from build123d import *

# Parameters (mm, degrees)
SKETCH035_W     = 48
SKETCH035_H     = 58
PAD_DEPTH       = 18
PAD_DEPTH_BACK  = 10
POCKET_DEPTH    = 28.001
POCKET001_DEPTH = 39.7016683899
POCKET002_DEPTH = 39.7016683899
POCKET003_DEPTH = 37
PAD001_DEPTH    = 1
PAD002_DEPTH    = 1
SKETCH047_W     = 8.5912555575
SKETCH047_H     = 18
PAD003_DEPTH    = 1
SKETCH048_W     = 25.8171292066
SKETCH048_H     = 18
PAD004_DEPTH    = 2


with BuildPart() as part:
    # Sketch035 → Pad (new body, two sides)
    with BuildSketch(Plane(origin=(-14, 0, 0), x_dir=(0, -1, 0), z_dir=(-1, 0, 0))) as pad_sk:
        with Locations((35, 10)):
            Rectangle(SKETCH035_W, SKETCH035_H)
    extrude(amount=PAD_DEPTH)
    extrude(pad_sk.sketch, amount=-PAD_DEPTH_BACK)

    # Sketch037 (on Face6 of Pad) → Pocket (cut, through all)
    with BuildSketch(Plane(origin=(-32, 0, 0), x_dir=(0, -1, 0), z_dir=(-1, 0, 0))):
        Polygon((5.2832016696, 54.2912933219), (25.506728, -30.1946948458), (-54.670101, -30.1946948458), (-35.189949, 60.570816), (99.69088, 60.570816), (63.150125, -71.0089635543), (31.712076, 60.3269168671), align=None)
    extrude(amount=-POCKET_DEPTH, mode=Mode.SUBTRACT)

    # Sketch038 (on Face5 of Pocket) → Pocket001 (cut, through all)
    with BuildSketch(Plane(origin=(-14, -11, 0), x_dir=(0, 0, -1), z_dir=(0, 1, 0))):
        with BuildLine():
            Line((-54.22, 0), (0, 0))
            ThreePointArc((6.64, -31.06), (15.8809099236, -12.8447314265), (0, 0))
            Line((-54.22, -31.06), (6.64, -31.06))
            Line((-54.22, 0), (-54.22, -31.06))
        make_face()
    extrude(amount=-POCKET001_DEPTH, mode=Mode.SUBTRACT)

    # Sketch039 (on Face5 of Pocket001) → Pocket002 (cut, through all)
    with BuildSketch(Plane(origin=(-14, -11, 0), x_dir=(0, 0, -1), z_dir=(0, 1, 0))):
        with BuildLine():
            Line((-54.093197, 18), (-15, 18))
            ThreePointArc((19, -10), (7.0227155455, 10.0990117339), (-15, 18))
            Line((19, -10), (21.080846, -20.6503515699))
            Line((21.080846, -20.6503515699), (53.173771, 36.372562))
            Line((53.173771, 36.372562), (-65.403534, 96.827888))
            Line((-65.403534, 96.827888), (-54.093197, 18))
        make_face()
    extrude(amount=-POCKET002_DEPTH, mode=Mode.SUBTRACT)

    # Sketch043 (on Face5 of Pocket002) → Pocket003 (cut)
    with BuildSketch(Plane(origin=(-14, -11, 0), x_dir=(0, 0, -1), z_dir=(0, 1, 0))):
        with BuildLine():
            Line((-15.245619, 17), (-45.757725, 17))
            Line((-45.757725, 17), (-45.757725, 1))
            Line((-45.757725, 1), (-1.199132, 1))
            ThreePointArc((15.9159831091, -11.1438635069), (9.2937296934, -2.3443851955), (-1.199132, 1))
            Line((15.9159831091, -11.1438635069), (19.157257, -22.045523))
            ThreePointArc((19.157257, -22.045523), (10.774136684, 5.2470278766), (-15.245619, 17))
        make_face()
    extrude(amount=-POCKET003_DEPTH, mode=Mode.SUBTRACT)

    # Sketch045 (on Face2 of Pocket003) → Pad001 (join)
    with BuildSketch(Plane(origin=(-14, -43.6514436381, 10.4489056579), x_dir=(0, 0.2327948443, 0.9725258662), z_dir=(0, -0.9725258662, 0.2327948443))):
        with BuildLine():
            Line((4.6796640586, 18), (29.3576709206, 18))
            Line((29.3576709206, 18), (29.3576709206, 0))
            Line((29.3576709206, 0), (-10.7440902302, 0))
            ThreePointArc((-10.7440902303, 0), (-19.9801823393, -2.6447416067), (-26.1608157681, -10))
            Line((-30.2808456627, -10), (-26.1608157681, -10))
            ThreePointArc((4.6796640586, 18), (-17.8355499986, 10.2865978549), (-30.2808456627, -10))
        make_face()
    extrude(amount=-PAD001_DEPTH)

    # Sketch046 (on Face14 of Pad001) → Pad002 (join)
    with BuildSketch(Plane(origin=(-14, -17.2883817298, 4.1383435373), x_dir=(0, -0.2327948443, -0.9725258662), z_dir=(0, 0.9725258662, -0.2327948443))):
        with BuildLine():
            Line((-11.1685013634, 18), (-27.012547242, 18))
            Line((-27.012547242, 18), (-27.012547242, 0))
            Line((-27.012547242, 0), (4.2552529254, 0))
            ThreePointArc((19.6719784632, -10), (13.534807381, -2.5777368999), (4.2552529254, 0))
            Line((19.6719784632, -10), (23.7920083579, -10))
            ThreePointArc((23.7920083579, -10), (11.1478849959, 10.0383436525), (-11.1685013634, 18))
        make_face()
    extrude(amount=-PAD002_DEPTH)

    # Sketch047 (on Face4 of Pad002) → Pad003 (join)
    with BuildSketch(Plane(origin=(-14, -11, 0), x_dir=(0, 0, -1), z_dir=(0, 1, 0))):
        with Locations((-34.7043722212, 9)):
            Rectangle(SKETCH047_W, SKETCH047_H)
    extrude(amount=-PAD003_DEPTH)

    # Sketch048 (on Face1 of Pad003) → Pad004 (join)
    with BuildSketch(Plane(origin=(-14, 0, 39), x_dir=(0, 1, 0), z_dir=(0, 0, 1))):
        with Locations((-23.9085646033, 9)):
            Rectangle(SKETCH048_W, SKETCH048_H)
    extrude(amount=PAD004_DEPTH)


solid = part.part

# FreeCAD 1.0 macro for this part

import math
import FreeCAD as App
import Part
import Sketcher
Q = App.Units.Quantity

doc = App.newDocument("Part")
params = doc.addObject("Spreadsheet::Sheet", "Params")
for row, (alias, value) in enumerate([
    ("sketch1_width", "48 mm"),
    ("sketch1_height", "58 mm"),
    ("pad1_length", "18 mm"),
    ("pad1_length2", "10 mm"),
    ("sketch3_width", "31.06 mm"),
    ("sketch3_height", "54.22 mm"),
    ("sketch3_height2", "60.86 mm"),
    ("sketch5_width", "16 mm"),
    ("pocket4_length", "37 mm"),
    ("sketch6_height", "18 mm"),
    ("pad2_length", "1 mm"),
    ("sketch7_height", "18 mm"),
    ("pad3_length", "1 mm"),
    ("sketch8_width", "18 mm"),
    ("pad4_length", "1 mm"),
    ("sketch9_width", "18 mm"),
    ("pad5_length", "2 mm"),
], start=1):
    params.set(f"A{row}", alias)
    params.set(f"B{row}", "=" + value)
    params.setAlias(f"B{row}", alias)

body = doc.addObject("PartDesign::Body", "Body")

# Sketch on YZ plane
sketch1 = body.newObject("Sketcher::SketchObject", "Sketch")
sketch1.AttachmentSupport = (doc.getObject("YZ_Plane"), [""])
sketch1.MapMode = "FlatFace"
sketch1.AttachmentOffset = App.Placement(App.Vector(0, 0, -14), App.Rotation())
sketch1.addGeometry([
    Part.LineSegment(App.Vector(-11, 39, 0), App.Vector(-11, -19, 0)),
    Part.LineSegment(App.Vector(-11, -19, 0), App.Vector(-59, -19, 0)),
    Part.LineSegment(App.Vector(-59, -19, 0), App.Vector(-59, 39, 0)),
    Part.LineSegment(App.Vector(-59, 39, 0), App.Vector(-11, 39, 0)),
], False)
sketch1.addConstraint([
    Sketcher.Constraint("Coincident", 0, 2, 1, 1),
    Sketcher.Constraint("Coincident", 1, 2, 2, 1),
    Sketcher.Constraint("Coincident", 2, 2, 3, 1),
    Sketcher.Constraint("Coincident", 3, 2, 0, 1),
    Sketcher.Constraint("Vertical", 0),
    Sketcher.Constraint("Horizontal", 1),
    Sketcher.Constraint("Vertical", 2),
    Sketcher.Constraint("Horizontal", 3),
    Sketcher.Constraint("DistanceX", 1, 2, 1, 1, Q("48 mm")),
    Sketcher.Constraint("DistanceY", 0, 2, 0, 1, Q("58 mm")),
    Sketcher.Constraint("DistanceX", 0, 2, -1, 1, Q("11 mm")),
    Sketcher.Constraint("DistanceY", 0, 2, -1, 1, Q("19 mm")),
])
sketch1.setExpression("Constraints[8]", "Params.sketch1_width")
sketch1.setExpression("Constraints[9]", "Params.sketch1_height")
pad1 = body.newObject("PartDesign::Pad", "Pad")
pad1.Profile = sketch1
pad1.Type = "TwoLengths"
pad1.setExpression("Length", "Params.pad1_length")
pad1.setExpression("Length2", "Params.pad1_length2")
pad1.Reversed = True

# Sketch on YZ plane
sketch2 = body.newObject("Sketcher::SketchObject", "Sketch001")
sketch2.AttachmentSupport = (doc.getObject("YZ_Plane"), [""])
sketch2.MapMode = "FlatFace"
sketch2.AttachmentOffset = App.Placement(App.Vector(0, 0, -32), App.Rotation())
sketch2.addGeometry([
    Part.LineSegment(App.Vector(-26, -30, 0), App.Vector(-5, 54, 0)),  # 0
    Part.LineSegment(App.Vector(-5, 54, 0), App.Vector(-32, 60, 0)),  # 1
    Part.LineSegment(App.Vector(-32, 60, 0), App.Vector(-63, -71, 0)),  # 2
    Part.LineSegment(App.Vector(-63, -71, 0), App.Vector(-100, 61, 0)),  # 3
    Part.LineSegment(App.Vector(-100, 61, 0), App.Vector(35, 61, 0)),  # 4
    Part.LineSegment(App.Vector(35, 61, 0), App.Vector(55, -30, 0)),  # 5
    Part.LineSegment(App.Vector(55, -30, 0), App.Vector(-26, -30, 0)),  # 6
], False)
sketch2.addConstraint([
    Sketcher.Constraint("Coincident", 0, 2, 1, 1),
    Sketcher.Constraint("Coincident", 1, 2, 2, 1),
    Sketcher.Constraint("Coincident", 2, 2, 3, 1),
    Sketcher.Constraint("Coincident", 3, 2, 4, 1),
    Sketcher.Constraint("Coincident", 4, 2, 5, 1),
    Sketcher.Constraint("Coincident", 5, 2, 6, 1),
    Sketcher.Constraint("Coincident", 6, 2, 0, 1),
    Sketcher.Constraint("Horizontal", 4),
    Sketcher.Constraint("Horizontal", 6),
    Sketcher.Constraint("Parallel", 0, 2),
    Sketcher.Constraint("Distance", 1, Q("27.1093 mm")),
    Sketcher.Constraint("Distance", 5, Q("92.832399 mm")),
    Sketcher.Constraint("DistanceX", 4, 1, 4, 2, Q("134.880829 mm")),
    Sketcher.Constraint("DistanceX", 6, 2, 6, 1, Q("80.176829 mm")),
    Sketcher.Constraint("DistanceX", 0, 2, -1, 1, Q("5.283202 mm")),
    Sketcher.Constraint("DistanceX", -1, 1, 5, 2, Q("54.670101 mm")),
    Sketcher.Constraint("DistanceY", 1, 2, 3, 2, Q("0.243899 mm")),
    Sketcher.Constraint("Distance", 0, Q("86.872741 mm")),
    Sketcher.Constraint("DistanceX", 3, 2, -1, 1, Q("99.69088 mm")),
    Sketcher.Constraint("DistanceX", 2, 2, 1, 2, Q("31.438049 mm")),
    Sketcher.Constraint("DistanceY", -1, 1, 0, 2, Q("54.291293 mm")),
])
pocket1 = body.newObject("PartDesign::Pocket", "Pocket")
pocket1.Profile = sketch2
pocket1.Type = "ThroughAll"
pocket1.Reversed = True

# Sketch on XZ plane
sketch3 = body.newObject("Sketcher::SketchObject", "Sketch002")
sketch3.AttachmentSupport = (doc.getObject("XZ_Plane"), [""])
sketch3.MapMode = "FlatFace"
sketch3.AttachmentOffset = App.Placement(App.Vector(0, 0, 11), App.Rotation())
sketch3.addGeometry([
    Part.LineSegment(App.Vector(-14, 0, 0), App.Vector(-14, 54, 0)),
    Part.LineSegment(App.Vector(-14, 54, 0), App.Vector(17, 54, 0)),
    Part.LineSegment(App.Vector(17, 54, 0), App.Vector(17, -7, 0)),
    Part.ArcOfCircle(Part.Circle(App.Vector(2, 0, 0), App.Vector(0, 0, 1), 16), math.radians(180), math.radians(336)),
], False)
sketch3.addConstraint([
    Sketcher.Constraint("Coincident", 0, 2, 1, 1),
    Sketcher.Constraint("Coincident", 1, 2, 2, 1),
    Sketcher.Constraint("Coincident", 2, 2, 3, 2),
    Sketcher.Constraint("Tangent", 3, 1, 0, 1),
    Sketcher.Constraint("Vertical", 0),
    Sketcher.Constraint("Horizontal", 1),
    Sketcher.Constraint("Vertical", 2),
    Sketcher.Constraint("PointOnObject", 3, 3, -1),
    Sketcher.Constraint("DistanceX", 0, 2, -1, 1, Q("14 mm")),
    Sketcher.Constraint("DistanceX", 1, 1, 1, 2, Q("31.06 mm")),
    Sketcher.Constraint("DistanceY", 0, 1, 0, 2, Q("54.22 mm")),
    Sketcher.Constraint("DistanceY", 2, 2, 2, 1, Q("60.86 mm")),
])
sketch3.setExpression("Constraints[9]", "Params.sketch3_width")
sketch3.setExpression("Constraints[10]", "Params.sketch3_height")
sketch3.setExpression("Constraints[11]", "Params.sketch3_height2")
pocket2 = body.newObject("PartDesign::Pocket", "Pocket001")
pocket2.Profile = sketch3
pocket2.Type = "ThroughAll"
pocket2.Reversed = True

# Sketch on XZ plane
sketch4 = body.newObject("Sketcher::SketchObject", "Sketch003")
sketch4.AttachmentSupport = (doc.getObject("XZ_Plane"), [""])
sketch4.MapMode = "FlatFace"
sketch4.AttachmentOffset = App.Placement(App.Vector(0, 0, 11), App.Rotation())
sketch4.addGeometry([
    Part.LineSegment(App.Vector(-32, 54, 0), App.Vector(-32, 15, 0)),  # 0
    Part.ArcOfCircle(Part.Circle(App.Vector(3, 15, 0), App.Vector(0, 0, 1), 35), math.radians(180), math.radians(259)),  # 1
    Part.LineSegment(App.Vector(-4, -19, 0), App.Vector(7, -21, 0)),  # 2
    Part.LineSegment(App.Vector(7, -21, 0), App.Vector(-50, -53, 0)),  # 3
    Part.LineSegment(App.Vector(-50, -53, 0), App.Vector(-111, 65, 0)),  # 4
    Part.LineSegment(App.Vector(-111, 65, 0), App.Vector(-32, 54, 0)),  # 5
], False)
sketch4.addConstraint([
    Sketcher.Constraint("Tangent", 0, 2, 1, 1),
    Sketcher.Constraint("Tangent", 1, 2, 2, 1),
    Sketcher.Constraint("Coincident", 2, 2, 3, 1),
    Sketcher.Constraint("Coincident", 3, 2, 4, 1),
    Sketcher.Constraint("Coincident", 4, 2, 5, 1),
    Sketcher.Constraint("Coincident", 5, 2, 0, 1),
    Sketcher.Constraint("Vertical", 0),
    Sketcher.Constraint("DistanceY", -1, 1, 1, 3, Q("15 mm")),
    Sketcher.Constraint("DistanceX", 0, 2, -1, 1, Q("32 mm")),
    Sketcher.Constraint("DistanceX", 1, 2, -1, 1, Q("4 mm")),
    Sketcher.Constraint("DistanceY", 1, 2, -1, 1, Q("19 mm")),
    Sketcher.Constraint("Distance", 4, Q("133.0993 mm")),
    Sketcher.Constraint("DistanceY", 0, 2, 0, 1, Q("39.093197 mm")),
    Sketcher.Constraint("DistanceX", -1, 1, 2, 2, Q("6.650352 mm")),
    Sketcher.Constraint("DistanceY", 3, 2, -1, 1, Q("53.173771 mm")),
    Sketcher.Constraint("DistanceX", 4, 2, -1, 1, Q("110.827888 mm")),
    Sketcher.Constraint("DistanceX", 3, 2, 1, 2, Q("46.372562 mm")),
])
pocket3 = body.newObject("PartDesign::Pocket", "Pocket002")
pocket3.Profile = sketch4
pocket3.Type = "ThroughAll"
pocket3.Reversed = True

# Sketch on XZ plane
sketch5 = body.newObject("Sketcher::SketchObject", "Sketch004")
sketch5.AttachmentSupport = (doc.getObject("XZ_Plane"), [""])
sketch5.MapMode = "FlatFace"
sketch5.AttachmentOffset = App.Placement(App.Vector(0, 0, 11), App.Rotation())
sketch5.addGeometry([
    Part.LineSegment(App.Vector(-31, 15, 0), App.Vector(-31, 46, 0)),  # 0
    Part.LineSegment(App.Vector(-31, 46, 0), App.Vector(-15, 46, 0)),  # 1
    Part.LineSegment(App.Vector(-15, 46, 0), App.Vector(-15, 1, 0)),  # 2
    Part.ArcOfCircle(Part.Circle(App.Vector(3, 1, 0), App.Vector(0, 0, 1), 18), math.radians(180), math.radians(251)),  # 3
    Part.LineSegment(App.Vector(-3, -16, 0), App.Vector(8, -19, 0)),  # 4
    Part.ArcOfCircle(Part.Circle(App.Vector(4, 15, 0), App.Vector(0, 0, 1), 35), math.radians(180), math.radians(277)),  # 5
], False)
sketch5.addConstraint([
    Sketcher.Constraint("Coincident", 0, 2, 1, 1),
    Sketcher.Constraint("Coincident", 1, 2, 2, 1),
    Sketcher.Constraint("Tangent", 2, 2, 3, 1),
    Sketcher.Constraint("Coincident", 3, 2, 4, 1),
    Sketcher.Constraint("Coincident", 4, 2, 5, 2),
    Sketcher.Constraint("Tangent", 5, 1, 0, 1),
    Sketcher.Constraint("Vertical", 0),
    Sketcher.Constraint("Horizontal", 1),
    Sketcher.Constraint("Vertical", 2),
    Sketcher.Constraint("DistanceX", 1, 1, 1, 2, Q("16 mm")),
    Sketcher.Constraint("DistanceX", 0, 2, -1, 1, Q("31 mm")),
    Sketcher.Constraint("Radius", 3, Q("18.132639 mm")),
    Sketcher.Constraint("Radius", 5, Q("34.678889 mm")),
    Sketcher.Constraint("DistanceY", 0, 1, 0, 2, Q("30.512106 mm")),
    Sketcher.Constraint("DistanceY", 2, 2, 2, 1, Q("44.558593 mm")),
    Sketcher.Constraint("DistanceY", -1, 1, 5, 3, Q("15.245619 mm")),
    Sketcher.Constraint("DistanceY", 3, 2, 1, 2, Q("61.673708 mm")),
    Sketcher.Constraint("DistanceX", 3, 2, 4, 2, Q("10.901659 mm")),
])
sketch5.setExpression("Constraints[9]", "Params.sketch5_width")
pocket4 = body.newObject("PartDesign::Pocket", "Pocket003")
pocket4.Profile = sketch5
pocket4.setExpression("Length", "Params.pocket4_length")
pocket4.Reversed = True

# Sketch on an angled plane
sketch6 = body.newObject("Sketcher::SketchObject", "Sketch005")
sketch6.Placement = App.Placement(App.Vector(-14, -43.651444, 10.448906), App.Rotation(App.Vector(0, 0.232794844, 0.972525866), App.Vector(-0.999999999, 0, 0), App.Vector(0, -0.972525866, 0.232794844), "ZXY"))
sketch6.addGeometry([
    Part.LineSegment(App.Vector(29.4, 18, 0), App.Vector(4.7, 18, 0)),  # 0
    Part.ArcOfCircle(Part.Circle(App.Vector(4.1, -17.2, 0), App.Vector(0, 0, 1), 35.2), math.radians(89), math.radians(168)),  # 1
    Part.LineSegment(App.Vector(-30.3, -10, 0), App.Vector(-26.2, -10, 0)),  # 2
    Part.ArcOfCircle(Part.Circle(App.Vector(-11, -16.4, 0), App.Vector(0, 0, 1), 16.4), math.radians(89), math.radians(157)),  # 3
    Part.LineSegment(App.Vector(-10.7, 0, 0), App.Vector(29.4, 0, 0)),  # 4
    Part.LineSegment(App.Vector(29.4, 0, 0), App.Vector(29.4, 18, 0)),  # 5
], False)
sketch6.addConstraint([
    Sketcher.Constraint("Coincident", 0, 2, 1, 1),
    Sketcher.Constraint("Coincident", 1, 2, 2, 1),
    Sketcher.Constraint("Coincident", 2, 2, 3, 2),
    Sketcher.Constraint("Coincident", 3, 1, 4, 1),
    Sketcher.Constraint("Coincident", 4, 2, 5, 1),
    Sketcher.Constraint("Coincident", 5, 2, 0, 1),
    Sketcher.Constraint("Horizontal", 0),
    Sketcher.Constraint("Horizontal", 2),
    Sketcher.Constraint("Horizontal", 4),
    Sketcher.Constraint("Vertical", 5),
    Sketcher.Constraint("PointOnObject", 3, 1, -1),
    Sketcher.Constraint("DistanceY", 5, 1, 5, 2, Q("18 mm")),
    Sketcher.Constraint("DistanceY", 1, 2, -1, 1, Q("10 mm")),
    Sketcher.Constraint("Radius", 1, Q("35.163191 mm")),
    Sketcher.Constraint("Radius", 3, Q("16.439016 mm")),
    Sketcher.Constraint("DistanceX", 2, 1, 2, 2, Q("4.12003 mm")),
    Sketcher.Constraint("DistanceX", 4, 1, 4, 2, Q("40.101761 mm")),
    Sketcher.Constraint("DistanceX", 0, 2, 0, 1, Q("24.678007 mm")),
    Sketcher.Constraint("DistanceX", -1, 1, 1, 3, Q("4.145841 mm")),
    Sketcher.Constraint("DistanceY", 1, 3, -1, 1, Q("17.159139 mm")),
])
sketch6.setExpression("Constraints[11]", "Params.sketch6_height")
pad2 = body.newObject("PartDesign::Pad", "Pad001")
pad2.Profile = sketch6
pad2.setExpression("Length", "Params.pad2_length")
pad2.Reversed = True

# Sketch on an angled plane
sketch7 = body.newObject("Sketcher::SketchObject", "Sketch006")
sketch7.Placement = App.Placement(App.Vector(-14, -17.288382, 4.138344), App.Rotation(App.Vector(0, -0.232794844, -0.972525866), App.Vector(-0.999999999, 0, 0), App.Vector(0, 0.972525866, -0.232794844), "ZXY"))
sketch7.addGeometry([
    Part.LineSegment(App.Vector(-11.2, 18, 0), App.Vector(-27, 18, 0)),  # 0
    Part.LineSegment(App.Vector(-27, 18, 0), App.Vector(-27, 0, 0)),  # 1
    Part.LineSegment(App.Vector(-27, 0, 0), App.Vector(4.3, 0, 0)),  # 2
    Part.ArcOfCircle(Part.Circle(App.Vector(4.8, -16.1, 0), App.Vector(0, 0, 1), 16.1), math.radians(22), math.radians(92)),  # 3
    Part.LineSegment(App.Vector(19.7, -10, 0), App.Vector(23.8, -10, 0)),  # 4
    Part.ArcOfCircle(Part.Circle(App.Vector(-11.5, -18.3, 0), App.Vector(0, 0, 1), 36.3), math.radians(13), math.radians(89)),  # 5
], False)
sketch7.addConstraint([
    Sketcher.Constraint("Coincident", 0, 2, 1, 1),
    Sketcher.Constraint("Coincident", 1, 2, 2, 1),
    Sketcher.Constraint("Coincident", 2, 2, 3, 2),
    Sketcher.Constraint("Coincident", 3, 1, 4, 1),
    Sketcher.Constraint("Coincident", 4, 2, 5, 1),
    Sketcher.Constraint("Coincident", 5, 2, 0, 1),
    Sketcher.Constraint("Horizontal", 0),
    Sketcher.Constraint("Vertical", 1),
    Sketcher.Constraint("Horizontal", 2),
    Sketcher.Constraint("Horizontal", 4),
    Sketcher.Constraint("PointOnObject", 1, 2, -1),
    Sketcher.Constraint("DistanceY", 1, 2, 1, 1, Q("18 mm")),
    Sketcher.Constraint("DistanceY", 3, 1, -1, 1, Q("10 mm")),
    Sketcher.Constraint("Radius", 3, Q("16.063041 mm")),
    Sketcher.Constraint("DistanceX", 2, 1, 2, 2, Q("31.2678 mm")),
    Sketcher.Constraint("Radius", 5, Q("36.284256 mm")),
    Sketcher.Constraint("DistanceX", 4, 1, 4, 2, Q("4.12003 mm")),
    Sketcher.Constraint("DistanceX", 5, 2, -1, 1, Q("11.168501 mm")),
    Sketcher.Constraint("DistanceX", 0, 2, 0, 1, Q("15.844046 mm")),
    Sketcher.Constraint("DistanceY", 3, 3, -1, 1, Q("16.054022 mm")),
])
sketch7.setExpression("Constraints[11]", "Params.sketch7_height")
pad3 = body.newObject("PartDesign::Pad", "Pad002")
pad3.Profile = sketch7
pad3.setExpression("Length", "Params.pad3_length")
pad3.Reversed = True

# Sketch on XZ plane
sketch8 = body.newObject("Sketcher::SketchObject", "Sketch007")
sketch8.AttachmentSupport = (doc.getObject("XZ_Plane"), [""])
sketch8.MapMode = "FlatFace"
sketch8.AttachmentOffset = App.Placement(App.Vector(0, 0, 11), App.Rotation())
sketch8.addGeometry([
    Part.LineSegment(App.Vector(-32, 39, 0), App.Vector(-14, 39, 0)),
    Part.LineSegment(App.Vector(-14, 39, 0), App.Vector(-14, 30, 0)),
    Part.LineSegment(App.Vector(-14, 30, 0), App.Vector(-32, 30, 0)),
    Part.LineSegment(App.Vector(-32, 30, 0), App.Vector(-32, 39, 0)),
], False)
sketch8.addConstraint([
    Sketcher.Constraint("Coincident", 0, 2, 1, 1),
    Sketcher.Constraint("Coincident", 1, 2, 2, 1),
    Sketcher.Constraint("Coincident", 2, 2, 3, 1),
    Sketcher.Constraint("Coincident", 3, 2, 0, 1),
    Sketcher.Constraint("Horizontal", 0),
    Sketcher.Constraint("Vertical", 1),
    Sketcher.Constraint("Horizontal", 2),
    Sketcher.Constraint("Vertical", 3),
    Sketcher.Constraint("DistanceX", 0, 1, 0, 2, Q("18 mm")),
    Sketcher.Constraint("DistanceX", 0, 2, -1, 1, Q("14 mm")),
    Sketcher.Constraint("DistanceY", -1, 1, 0, 2, Q("39 mm")),
    Sketcher.Constraint("DistanceY", 1, 2, 1, 1, Q("8.591256 mm")),
])
sketch8.setExpression("Constraints[8]", "Params.sketch8_width")
pad4 = body.newObject("PartDesign::Pad", "Pad003")
pad4.Profile = sketch8
pad4.setExpression("Length", "Params.pad4_length")

# Sketch on XY plane
sketch9 = body.newObject("Sketcher::SketchObject", "Sketch008")
sketch9.AttachmentSupport = (doc.getObject("XY_Plane"), [""])
sketch9.MapMode = "FlatFace"
sketch9.AttachmentOffset = App.Placement(App.Vector(0, 0, 39), App.Rotation())
sketch9.addGeometry([
    Part.LineSegment(App.Vector(-32, -37, 0), App.Vector(-14, -37, 0)),
    Part.LineSegment(App.Vector(-14, -37, 0), App.Vector(-14, -11, 0)),
    Part.LineSegment(App.Vector(-14, -11, 0), App.Vector(-32, -11, 0)),
    Part.LineSegment(App.Vector(-32, -11, 0), App.Vector(-32, -37, 0)),
], False)
sketch9.addConstraint([
    Sketcher.Constraint("Coincident", 0, 2, 1, 1),
    Sketcher.Constraint("Coincident", 1, 2, 2, 1),
    Sketcher.Constraint("Coincident", 2, 2, 3, 1),
    Sketcher.Constraint("Coincident", 3, 2, 0, 1),
    Sketcher.Constraint("Horizontal", 0),
    Sketcher.Constraint("Vertical", 1),
    Sketcher.Constraint("Horizontal", 2),
    Sketcher.Constraint("Vertical", 3),
    Sketcher.Constraint("DistanceX", 0, 1, 0, 2, Q("18 mm")),
    Sketcher.Constraint("DistanceX", 0, 2, -1, 1, Q("14 mm")),
    Sketcher.Constraint("DistanceY", 1, 2, -1, 1, Q("11 mm")),
    Sketcher.Constraint("DistanceY", 1, 1, 1, 2, Q("25.817129 mm")),
])
sketch9.setExpression("Constraints[8]", "Params.sketch9_width")
pad5 = body.newObject("PartDesign::Pad", "Pad004")
pad5.Profile = sketch9
pad5.setExpression("Length", "Params.pad5_length")

doc.recompute()
